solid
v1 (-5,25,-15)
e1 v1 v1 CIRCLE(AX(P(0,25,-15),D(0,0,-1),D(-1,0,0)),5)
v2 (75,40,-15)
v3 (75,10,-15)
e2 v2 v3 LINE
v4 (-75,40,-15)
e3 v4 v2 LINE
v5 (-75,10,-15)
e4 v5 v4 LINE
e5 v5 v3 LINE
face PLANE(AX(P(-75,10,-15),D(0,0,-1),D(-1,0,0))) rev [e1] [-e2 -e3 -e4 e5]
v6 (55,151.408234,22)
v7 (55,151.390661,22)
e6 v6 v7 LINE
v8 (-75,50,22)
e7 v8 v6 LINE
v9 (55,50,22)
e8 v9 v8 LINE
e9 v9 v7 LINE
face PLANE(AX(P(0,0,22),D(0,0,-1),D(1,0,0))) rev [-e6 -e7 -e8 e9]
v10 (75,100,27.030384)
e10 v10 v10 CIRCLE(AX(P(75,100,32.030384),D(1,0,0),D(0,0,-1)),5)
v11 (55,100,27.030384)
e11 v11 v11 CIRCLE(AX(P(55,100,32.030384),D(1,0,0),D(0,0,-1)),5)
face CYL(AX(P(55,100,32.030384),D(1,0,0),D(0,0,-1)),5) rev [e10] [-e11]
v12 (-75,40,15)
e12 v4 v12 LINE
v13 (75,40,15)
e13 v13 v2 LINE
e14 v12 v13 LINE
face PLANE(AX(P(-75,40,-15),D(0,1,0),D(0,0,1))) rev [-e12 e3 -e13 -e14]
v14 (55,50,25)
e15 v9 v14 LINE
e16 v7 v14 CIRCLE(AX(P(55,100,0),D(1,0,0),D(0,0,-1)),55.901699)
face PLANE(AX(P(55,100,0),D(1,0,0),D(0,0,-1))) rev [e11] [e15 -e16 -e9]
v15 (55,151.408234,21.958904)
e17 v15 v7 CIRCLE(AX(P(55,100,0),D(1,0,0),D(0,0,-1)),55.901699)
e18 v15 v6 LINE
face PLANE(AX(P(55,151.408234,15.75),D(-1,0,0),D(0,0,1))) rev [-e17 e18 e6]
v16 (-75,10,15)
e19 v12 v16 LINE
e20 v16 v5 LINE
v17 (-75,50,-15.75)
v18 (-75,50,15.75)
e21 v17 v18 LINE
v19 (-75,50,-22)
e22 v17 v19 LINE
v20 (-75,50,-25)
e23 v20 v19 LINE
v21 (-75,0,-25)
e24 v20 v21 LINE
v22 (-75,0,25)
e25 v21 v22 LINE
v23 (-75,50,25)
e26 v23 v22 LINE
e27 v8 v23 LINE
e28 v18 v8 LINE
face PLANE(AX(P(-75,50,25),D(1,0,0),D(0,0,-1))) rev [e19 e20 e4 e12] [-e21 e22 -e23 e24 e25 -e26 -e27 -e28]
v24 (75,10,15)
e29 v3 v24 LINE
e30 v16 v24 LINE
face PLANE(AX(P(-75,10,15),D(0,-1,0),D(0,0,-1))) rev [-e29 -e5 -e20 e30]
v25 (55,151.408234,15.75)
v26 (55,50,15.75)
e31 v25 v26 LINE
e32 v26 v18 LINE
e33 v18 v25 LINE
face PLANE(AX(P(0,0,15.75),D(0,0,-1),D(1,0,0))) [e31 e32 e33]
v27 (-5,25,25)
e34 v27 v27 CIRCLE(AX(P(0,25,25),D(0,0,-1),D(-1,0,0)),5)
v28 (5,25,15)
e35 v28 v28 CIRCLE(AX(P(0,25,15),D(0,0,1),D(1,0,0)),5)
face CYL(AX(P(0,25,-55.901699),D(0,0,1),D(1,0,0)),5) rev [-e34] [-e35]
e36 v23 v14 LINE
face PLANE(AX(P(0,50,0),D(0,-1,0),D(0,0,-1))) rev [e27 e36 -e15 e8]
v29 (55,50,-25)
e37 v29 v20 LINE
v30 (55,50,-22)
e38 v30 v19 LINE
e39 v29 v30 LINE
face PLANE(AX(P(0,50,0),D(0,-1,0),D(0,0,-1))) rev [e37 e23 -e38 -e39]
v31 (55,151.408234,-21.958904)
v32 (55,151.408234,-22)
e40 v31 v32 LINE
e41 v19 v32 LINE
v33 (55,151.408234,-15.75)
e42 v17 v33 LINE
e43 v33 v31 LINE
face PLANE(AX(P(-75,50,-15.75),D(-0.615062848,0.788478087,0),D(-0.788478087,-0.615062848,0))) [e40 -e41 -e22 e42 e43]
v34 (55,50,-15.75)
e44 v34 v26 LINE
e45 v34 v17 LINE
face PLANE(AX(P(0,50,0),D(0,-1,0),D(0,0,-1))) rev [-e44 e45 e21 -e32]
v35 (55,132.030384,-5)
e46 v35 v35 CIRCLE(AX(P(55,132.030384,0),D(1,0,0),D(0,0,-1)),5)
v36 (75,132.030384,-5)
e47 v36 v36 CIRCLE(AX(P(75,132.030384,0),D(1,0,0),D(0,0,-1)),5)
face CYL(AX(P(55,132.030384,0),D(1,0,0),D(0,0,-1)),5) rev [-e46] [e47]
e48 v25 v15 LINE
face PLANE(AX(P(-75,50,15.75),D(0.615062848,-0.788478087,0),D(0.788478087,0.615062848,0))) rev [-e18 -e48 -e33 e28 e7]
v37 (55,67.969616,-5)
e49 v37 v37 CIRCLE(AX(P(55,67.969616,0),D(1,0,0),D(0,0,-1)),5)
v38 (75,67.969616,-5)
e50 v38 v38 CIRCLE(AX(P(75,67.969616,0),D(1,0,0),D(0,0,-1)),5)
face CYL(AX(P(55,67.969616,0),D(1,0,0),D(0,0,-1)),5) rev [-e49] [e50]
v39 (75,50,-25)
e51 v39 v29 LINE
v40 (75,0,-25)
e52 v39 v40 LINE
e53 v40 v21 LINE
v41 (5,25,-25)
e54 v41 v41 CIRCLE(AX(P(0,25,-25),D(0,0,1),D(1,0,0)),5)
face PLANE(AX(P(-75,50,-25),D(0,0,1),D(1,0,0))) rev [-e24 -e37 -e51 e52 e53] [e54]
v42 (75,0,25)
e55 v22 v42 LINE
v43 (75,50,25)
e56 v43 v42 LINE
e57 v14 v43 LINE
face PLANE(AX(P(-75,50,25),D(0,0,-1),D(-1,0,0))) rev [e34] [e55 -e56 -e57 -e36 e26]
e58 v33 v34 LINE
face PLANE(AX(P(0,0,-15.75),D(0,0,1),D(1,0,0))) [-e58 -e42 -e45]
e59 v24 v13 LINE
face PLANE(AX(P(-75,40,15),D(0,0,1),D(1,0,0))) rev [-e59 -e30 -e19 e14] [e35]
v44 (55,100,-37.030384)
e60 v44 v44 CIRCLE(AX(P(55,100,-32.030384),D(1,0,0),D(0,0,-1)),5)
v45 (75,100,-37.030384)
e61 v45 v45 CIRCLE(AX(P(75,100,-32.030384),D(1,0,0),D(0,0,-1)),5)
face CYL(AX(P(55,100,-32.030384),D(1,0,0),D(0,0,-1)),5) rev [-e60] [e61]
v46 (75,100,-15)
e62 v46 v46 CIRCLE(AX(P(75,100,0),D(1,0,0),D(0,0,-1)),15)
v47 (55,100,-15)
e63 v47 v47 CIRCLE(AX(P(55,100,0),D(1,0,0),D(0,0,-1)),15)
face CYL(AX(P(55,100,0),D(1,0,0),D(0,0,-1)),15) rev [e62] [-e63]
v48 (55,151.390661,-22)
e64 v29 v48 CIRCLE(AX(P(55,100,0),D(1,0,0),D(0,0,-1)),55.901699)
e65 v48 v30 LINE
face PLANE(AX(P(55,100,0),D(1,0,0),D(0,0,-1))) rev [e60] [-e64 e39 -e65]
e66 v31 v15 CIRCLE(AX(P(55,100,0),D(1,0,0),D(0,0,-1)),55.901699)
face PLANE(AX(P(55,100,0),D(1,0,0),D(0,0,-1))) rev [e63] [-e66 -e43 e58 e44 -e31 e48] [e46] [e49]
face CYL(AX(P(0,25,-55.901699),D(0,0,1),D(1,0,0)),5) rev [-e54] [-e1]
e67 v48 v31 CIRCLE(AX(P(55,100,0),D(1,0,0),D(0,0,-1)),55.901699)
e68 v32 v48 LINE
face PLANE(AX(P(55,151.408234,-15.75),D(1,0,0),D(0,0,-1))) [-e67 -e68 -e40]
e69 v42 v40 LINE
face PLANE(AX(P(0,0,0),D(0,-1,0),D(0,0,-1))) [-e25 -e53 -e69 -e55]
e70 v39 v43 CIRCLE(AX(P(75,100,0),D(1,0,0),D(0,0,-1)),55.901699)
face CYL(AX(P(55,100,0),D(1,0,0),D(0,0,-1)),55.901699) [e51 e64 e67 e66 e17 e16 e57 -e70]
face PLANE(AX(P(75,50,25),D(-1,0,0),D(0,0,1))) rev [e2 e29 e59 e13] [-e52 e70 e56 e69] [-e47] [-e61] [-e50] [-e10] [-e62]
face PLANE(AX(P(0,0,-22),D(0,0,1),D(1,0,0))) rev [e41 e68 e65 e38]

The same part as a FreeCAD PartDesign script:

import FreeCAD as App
import Part
import Sketcher
from FreeCAD import Vector


def add_polygon(sketch, points):
    """Adds a closed chain of lines whose ends are joined by coincident constraints."""
    first, n = sketch.GeometryCount, len(points)
    for a, b in zip(points, points[1:] + points[:1]):
        sketch.addGeometry(Part.LineSegment(App.Vector(*a, 0), App.Vector(*b, 0)), False)
    for i in range(n):
        sketch.addConstraint(Sketcher.Constraint("Coincident", first + i, 2, first + (i + 1) % n, 1))

doc = App.newDocument("Part")
body = doc.addObject("PartDesign::Body", "Body")

# Sketch on XZ plane
sketch1 = body.newObject("Sketcher::SketchObject", "Sketch")
sketch1.AttachmentSupport = (doc.getObject("XZ_Plane"), [""])
sketch1.MapMode = "FlatFace"
add_polygon(sketch1, [(-75, -25), (-75, 25), (75, 25), (75, -25)])  # lines 0-3
sketch1.addConstraint(Sketcher.Constraint("Vertical", 0))
sketch1.addConstraint(Sketcher.Constraint("Horizontal", 1))
sketch1.addConstraint(Sketcher.Constraint("Vertical", 2))
sketch1.addConstraint(Sketcher.Constraint("Horizontal", 3))
sketch1.addConstraint(Sketcher.Constraint("Symmetric", 0, 2, 2, 2, -1, 1))
sketch1.addConstraint(Sketcher.Constraint("DistanceX", 1, 1, 1, 2, 150.0))
sketch1.addConstraint(Sketcher.Constraint("DistanceY", 0, 1, 0, 2, 50.0))
pad1 = body.newObject("PartDesign::Pad", "Pad")
pad1.Profile = sketch1
pad1.Length = 50
pad1.Reversed = True

# Sketch on YZ plane
sketch2 = body.newObject("Sketcher::SketchObject", "Sketch001")
sketch2.AttachmentSupport = (doc.getObject("YZ_Plane"), [""])
sketch2.MapMode = "FlatFace"
sketch2.AttachmentOffset = App.Placement(Vector(0, 0, 75), App.Rotation())
add_polygon(sketch2, [(40, 15), (10, 15), (10, -15), (40, -15)])  # lines 0-3
sketch2.addConstraint(Sketcher.Constraint("Horizontal", 0))
sketch2.addConstraint(Sketcher.Constraint("Vertical", 1))
sketch2.addConstraint(Sketcher.Constraint("Horizontal", 2))
sketch2.addConstraint(Sketcher.Constraint("Vertical", 3))
sketch2.addConstraint(Sketcher.Constraint("Equal", 2, 1))
sketch2.addConstraint(Sketcher.Constraint("DistanceX", 0, 2, 0, 1, 30.0))
sketch2.addConstraint(Sketcher.Constraint("DistanceX", -1, 1, 0, 2, 10.0))
sketch2.addConstraint(Sketcher.Constraint("DistanceY", -1, 1, 0, 2, 15.0))
pocket1 = body.newObject("PartDesign::Pocket", "Pocket")
pocket1.Profile = sketch2
pocket1.Type = "ThroughAll"
pocket1.Midplane = True

# Sketch on YZ plane
sketch3 = body.newObject("Sketcher::SketchObject", "Sketch002")
sketch3.AttachmentSupport = (doc.getObject("YZ_Plane"), [""])
sketch3.MapMode = "FlatFace"
sketch3.AttachmentOffset = App.Placement(Vector(0, 0, 75), App.Rotation())
sketch3.addGeometry(Part.Circle(Vector(100, 0, 0), Vector(0, 0, 1), 55.901699), False)
sketch3.addGeometry(Part.Circle(Vector(100, 32.030384, 0), Vector(0, 0, 1), 5), False)
sketch3.addGeometry(Part.Circle(Vector(67.969616, 0, 0), Vector(0, 0, 1), 5), False)
sketch3.addGeometry(Part.Circle(Vector(100, 0, 0), Vector(0, 0, 1), 15), False)
sketch3.addGeometry(Part.Circle(Vector(100, -32.030384, 0), Vector(0, 0, 1), 5), False)
sketch3.addGeometry(Part.Circle(Vector(132.030384, 0, 0), Vector(0, 0, 1), 5), False)
sketch3.addConstraint(Sketcher.Constraint("Coincident", 3, 3, 0, 3))
sketch3.addConstraint(Sketcher.Constraint("Equal", 1, 2))
sketch3.addConstraint(Sketcher.Constraint("Equal", 2, 4))
sketch3.addConstraint(Sketcher.Constraint("Equal", 4, 5))
sketch3.addConstraint(Sketcher.Constraint("Symmetric", 1, 3, 4, 3, -1))
sketch3.addConstraint(Sketcher.Constraint("PointOnObject", 0, 3, -1))
sketch3.addConstraint(Sketcher.Constraint("PointOnObject", 2, 3, -1))
sketch3.addConstraint(Sketcher.Constraint("PointOnObject", 5, 3, -1))
sketch3.addConstraint(Sketcher.Constraint("Vertical", 0, 3, 1, 3))
sketch3.addConstraint(Sketcher.Constraint("Diameter", 1, 10.0))
sketch3.addConstraint(Sketcher.Constraint("Diameter", 3, 30.0))
sketch3.addConstraint(Sketcher.Constraint("DistanceX", -1, 1, 0, 3, 100.0))
sketch3.addConstraint(Sketcher.Constraint("Diameter", 0, 111.803399))
sketch3.addConstraint(Sketcher.Constraint("DistanceY", 4, 3, 1, 3, 64.060768))
sketch3.addConstraint(Sketcher.Constraint("DistanceX", 2, 3, 5, 3, 64.060768))
sketch3.addConstraint(Sketcher.Constraint("DistanceX", -1, 1, 2, 3, 67.969616))
pad2 = body.newObject("PartDesign::Pad", "Pad001")
pad2.Profile = sketch3
pad2.Length = 20
pad2.Reversed = True

# Sketch on XY plane
sketch4 = body.newObject("Sketcher::SketchObject", "Sketch003")
sketch4.AttachmentSupport = (doc.getObject("XY_Plane"), [""])
sketch4.MapMode = "FlatFace"
sketch4.AttachmentOffset = App.Placement(Vector(0, 0, -22), App.Rotation())
add_polygon(sketch4, [(-75, 50), (55, 151.408234), (55, 50)])  # lines 0-2
sketch4.addConstraint(Sketcher.Constraint("Vertical", 1))
sketch4.addConstraint(Sketcher.Constraint("Horizontal", 2))
sketch4.addConstraint(Sketcher.Constraint("DistanceX", 2, 2, 2, 1, 130.0))
sketch4.addConstraint(Sketcher.Constraint("DistanceX", -1, 1, 0, 2, 55.0))
sketch4.addConstraint(Sketcher.Constraint("DistanceY", -1, 1, 1, 2, 50.0))
sketch4.addConstraint(Sketcher.Constraint("Distance", 0, 164.874588))
pad3 = body.newObject("PartDesign::Pad", "Pad002")
pad3.Profile = sketch4
pad3.Length = 6.25

# Sketch on XY plane
sketch5 = body.newObject("Sketcher::SketchObject", "Sketch004")
sketch5.AttachmentSupport = (doc.getObject("XY_Plane"), [""])
sketch5.MapMode = "FlatFace"
sketch5.AttachmentOffset = App.Placement(Vector(0, 0, 25), App.Rotation())
sketch5.addGeometry(Part.Circle(Vector(0, 25, 0), Vector(0, 0, 1), 5), False)
sketch5.addConstraint(Sketcher.Constraint("PointOnObject", 0, 3, -2))
sketch5.addConstraint(Sketcher.Constraint("Diameter", 0, 10.0))
sketch5.addConstraint(Sketcher.Constraint("DistanceY", -1, 1, 0, 3, 25.0))
pocket2 = body.newObject("PartDesign::Pocket", "Pocket001")
pocket2.Profile = sketch5
pocket2.Type = "ThroughAll"
pocket2.Midplane = True
doc.recompute()

mirrored = body.newObject("PartDesign::Mirrored", "Mirrored")
mirrored.Originals = [pad3]
mirrored.MirrorPlane = (doc.getObject("XY_Plane"), [""])
body.Tip = mirrored

doc.recompute()
